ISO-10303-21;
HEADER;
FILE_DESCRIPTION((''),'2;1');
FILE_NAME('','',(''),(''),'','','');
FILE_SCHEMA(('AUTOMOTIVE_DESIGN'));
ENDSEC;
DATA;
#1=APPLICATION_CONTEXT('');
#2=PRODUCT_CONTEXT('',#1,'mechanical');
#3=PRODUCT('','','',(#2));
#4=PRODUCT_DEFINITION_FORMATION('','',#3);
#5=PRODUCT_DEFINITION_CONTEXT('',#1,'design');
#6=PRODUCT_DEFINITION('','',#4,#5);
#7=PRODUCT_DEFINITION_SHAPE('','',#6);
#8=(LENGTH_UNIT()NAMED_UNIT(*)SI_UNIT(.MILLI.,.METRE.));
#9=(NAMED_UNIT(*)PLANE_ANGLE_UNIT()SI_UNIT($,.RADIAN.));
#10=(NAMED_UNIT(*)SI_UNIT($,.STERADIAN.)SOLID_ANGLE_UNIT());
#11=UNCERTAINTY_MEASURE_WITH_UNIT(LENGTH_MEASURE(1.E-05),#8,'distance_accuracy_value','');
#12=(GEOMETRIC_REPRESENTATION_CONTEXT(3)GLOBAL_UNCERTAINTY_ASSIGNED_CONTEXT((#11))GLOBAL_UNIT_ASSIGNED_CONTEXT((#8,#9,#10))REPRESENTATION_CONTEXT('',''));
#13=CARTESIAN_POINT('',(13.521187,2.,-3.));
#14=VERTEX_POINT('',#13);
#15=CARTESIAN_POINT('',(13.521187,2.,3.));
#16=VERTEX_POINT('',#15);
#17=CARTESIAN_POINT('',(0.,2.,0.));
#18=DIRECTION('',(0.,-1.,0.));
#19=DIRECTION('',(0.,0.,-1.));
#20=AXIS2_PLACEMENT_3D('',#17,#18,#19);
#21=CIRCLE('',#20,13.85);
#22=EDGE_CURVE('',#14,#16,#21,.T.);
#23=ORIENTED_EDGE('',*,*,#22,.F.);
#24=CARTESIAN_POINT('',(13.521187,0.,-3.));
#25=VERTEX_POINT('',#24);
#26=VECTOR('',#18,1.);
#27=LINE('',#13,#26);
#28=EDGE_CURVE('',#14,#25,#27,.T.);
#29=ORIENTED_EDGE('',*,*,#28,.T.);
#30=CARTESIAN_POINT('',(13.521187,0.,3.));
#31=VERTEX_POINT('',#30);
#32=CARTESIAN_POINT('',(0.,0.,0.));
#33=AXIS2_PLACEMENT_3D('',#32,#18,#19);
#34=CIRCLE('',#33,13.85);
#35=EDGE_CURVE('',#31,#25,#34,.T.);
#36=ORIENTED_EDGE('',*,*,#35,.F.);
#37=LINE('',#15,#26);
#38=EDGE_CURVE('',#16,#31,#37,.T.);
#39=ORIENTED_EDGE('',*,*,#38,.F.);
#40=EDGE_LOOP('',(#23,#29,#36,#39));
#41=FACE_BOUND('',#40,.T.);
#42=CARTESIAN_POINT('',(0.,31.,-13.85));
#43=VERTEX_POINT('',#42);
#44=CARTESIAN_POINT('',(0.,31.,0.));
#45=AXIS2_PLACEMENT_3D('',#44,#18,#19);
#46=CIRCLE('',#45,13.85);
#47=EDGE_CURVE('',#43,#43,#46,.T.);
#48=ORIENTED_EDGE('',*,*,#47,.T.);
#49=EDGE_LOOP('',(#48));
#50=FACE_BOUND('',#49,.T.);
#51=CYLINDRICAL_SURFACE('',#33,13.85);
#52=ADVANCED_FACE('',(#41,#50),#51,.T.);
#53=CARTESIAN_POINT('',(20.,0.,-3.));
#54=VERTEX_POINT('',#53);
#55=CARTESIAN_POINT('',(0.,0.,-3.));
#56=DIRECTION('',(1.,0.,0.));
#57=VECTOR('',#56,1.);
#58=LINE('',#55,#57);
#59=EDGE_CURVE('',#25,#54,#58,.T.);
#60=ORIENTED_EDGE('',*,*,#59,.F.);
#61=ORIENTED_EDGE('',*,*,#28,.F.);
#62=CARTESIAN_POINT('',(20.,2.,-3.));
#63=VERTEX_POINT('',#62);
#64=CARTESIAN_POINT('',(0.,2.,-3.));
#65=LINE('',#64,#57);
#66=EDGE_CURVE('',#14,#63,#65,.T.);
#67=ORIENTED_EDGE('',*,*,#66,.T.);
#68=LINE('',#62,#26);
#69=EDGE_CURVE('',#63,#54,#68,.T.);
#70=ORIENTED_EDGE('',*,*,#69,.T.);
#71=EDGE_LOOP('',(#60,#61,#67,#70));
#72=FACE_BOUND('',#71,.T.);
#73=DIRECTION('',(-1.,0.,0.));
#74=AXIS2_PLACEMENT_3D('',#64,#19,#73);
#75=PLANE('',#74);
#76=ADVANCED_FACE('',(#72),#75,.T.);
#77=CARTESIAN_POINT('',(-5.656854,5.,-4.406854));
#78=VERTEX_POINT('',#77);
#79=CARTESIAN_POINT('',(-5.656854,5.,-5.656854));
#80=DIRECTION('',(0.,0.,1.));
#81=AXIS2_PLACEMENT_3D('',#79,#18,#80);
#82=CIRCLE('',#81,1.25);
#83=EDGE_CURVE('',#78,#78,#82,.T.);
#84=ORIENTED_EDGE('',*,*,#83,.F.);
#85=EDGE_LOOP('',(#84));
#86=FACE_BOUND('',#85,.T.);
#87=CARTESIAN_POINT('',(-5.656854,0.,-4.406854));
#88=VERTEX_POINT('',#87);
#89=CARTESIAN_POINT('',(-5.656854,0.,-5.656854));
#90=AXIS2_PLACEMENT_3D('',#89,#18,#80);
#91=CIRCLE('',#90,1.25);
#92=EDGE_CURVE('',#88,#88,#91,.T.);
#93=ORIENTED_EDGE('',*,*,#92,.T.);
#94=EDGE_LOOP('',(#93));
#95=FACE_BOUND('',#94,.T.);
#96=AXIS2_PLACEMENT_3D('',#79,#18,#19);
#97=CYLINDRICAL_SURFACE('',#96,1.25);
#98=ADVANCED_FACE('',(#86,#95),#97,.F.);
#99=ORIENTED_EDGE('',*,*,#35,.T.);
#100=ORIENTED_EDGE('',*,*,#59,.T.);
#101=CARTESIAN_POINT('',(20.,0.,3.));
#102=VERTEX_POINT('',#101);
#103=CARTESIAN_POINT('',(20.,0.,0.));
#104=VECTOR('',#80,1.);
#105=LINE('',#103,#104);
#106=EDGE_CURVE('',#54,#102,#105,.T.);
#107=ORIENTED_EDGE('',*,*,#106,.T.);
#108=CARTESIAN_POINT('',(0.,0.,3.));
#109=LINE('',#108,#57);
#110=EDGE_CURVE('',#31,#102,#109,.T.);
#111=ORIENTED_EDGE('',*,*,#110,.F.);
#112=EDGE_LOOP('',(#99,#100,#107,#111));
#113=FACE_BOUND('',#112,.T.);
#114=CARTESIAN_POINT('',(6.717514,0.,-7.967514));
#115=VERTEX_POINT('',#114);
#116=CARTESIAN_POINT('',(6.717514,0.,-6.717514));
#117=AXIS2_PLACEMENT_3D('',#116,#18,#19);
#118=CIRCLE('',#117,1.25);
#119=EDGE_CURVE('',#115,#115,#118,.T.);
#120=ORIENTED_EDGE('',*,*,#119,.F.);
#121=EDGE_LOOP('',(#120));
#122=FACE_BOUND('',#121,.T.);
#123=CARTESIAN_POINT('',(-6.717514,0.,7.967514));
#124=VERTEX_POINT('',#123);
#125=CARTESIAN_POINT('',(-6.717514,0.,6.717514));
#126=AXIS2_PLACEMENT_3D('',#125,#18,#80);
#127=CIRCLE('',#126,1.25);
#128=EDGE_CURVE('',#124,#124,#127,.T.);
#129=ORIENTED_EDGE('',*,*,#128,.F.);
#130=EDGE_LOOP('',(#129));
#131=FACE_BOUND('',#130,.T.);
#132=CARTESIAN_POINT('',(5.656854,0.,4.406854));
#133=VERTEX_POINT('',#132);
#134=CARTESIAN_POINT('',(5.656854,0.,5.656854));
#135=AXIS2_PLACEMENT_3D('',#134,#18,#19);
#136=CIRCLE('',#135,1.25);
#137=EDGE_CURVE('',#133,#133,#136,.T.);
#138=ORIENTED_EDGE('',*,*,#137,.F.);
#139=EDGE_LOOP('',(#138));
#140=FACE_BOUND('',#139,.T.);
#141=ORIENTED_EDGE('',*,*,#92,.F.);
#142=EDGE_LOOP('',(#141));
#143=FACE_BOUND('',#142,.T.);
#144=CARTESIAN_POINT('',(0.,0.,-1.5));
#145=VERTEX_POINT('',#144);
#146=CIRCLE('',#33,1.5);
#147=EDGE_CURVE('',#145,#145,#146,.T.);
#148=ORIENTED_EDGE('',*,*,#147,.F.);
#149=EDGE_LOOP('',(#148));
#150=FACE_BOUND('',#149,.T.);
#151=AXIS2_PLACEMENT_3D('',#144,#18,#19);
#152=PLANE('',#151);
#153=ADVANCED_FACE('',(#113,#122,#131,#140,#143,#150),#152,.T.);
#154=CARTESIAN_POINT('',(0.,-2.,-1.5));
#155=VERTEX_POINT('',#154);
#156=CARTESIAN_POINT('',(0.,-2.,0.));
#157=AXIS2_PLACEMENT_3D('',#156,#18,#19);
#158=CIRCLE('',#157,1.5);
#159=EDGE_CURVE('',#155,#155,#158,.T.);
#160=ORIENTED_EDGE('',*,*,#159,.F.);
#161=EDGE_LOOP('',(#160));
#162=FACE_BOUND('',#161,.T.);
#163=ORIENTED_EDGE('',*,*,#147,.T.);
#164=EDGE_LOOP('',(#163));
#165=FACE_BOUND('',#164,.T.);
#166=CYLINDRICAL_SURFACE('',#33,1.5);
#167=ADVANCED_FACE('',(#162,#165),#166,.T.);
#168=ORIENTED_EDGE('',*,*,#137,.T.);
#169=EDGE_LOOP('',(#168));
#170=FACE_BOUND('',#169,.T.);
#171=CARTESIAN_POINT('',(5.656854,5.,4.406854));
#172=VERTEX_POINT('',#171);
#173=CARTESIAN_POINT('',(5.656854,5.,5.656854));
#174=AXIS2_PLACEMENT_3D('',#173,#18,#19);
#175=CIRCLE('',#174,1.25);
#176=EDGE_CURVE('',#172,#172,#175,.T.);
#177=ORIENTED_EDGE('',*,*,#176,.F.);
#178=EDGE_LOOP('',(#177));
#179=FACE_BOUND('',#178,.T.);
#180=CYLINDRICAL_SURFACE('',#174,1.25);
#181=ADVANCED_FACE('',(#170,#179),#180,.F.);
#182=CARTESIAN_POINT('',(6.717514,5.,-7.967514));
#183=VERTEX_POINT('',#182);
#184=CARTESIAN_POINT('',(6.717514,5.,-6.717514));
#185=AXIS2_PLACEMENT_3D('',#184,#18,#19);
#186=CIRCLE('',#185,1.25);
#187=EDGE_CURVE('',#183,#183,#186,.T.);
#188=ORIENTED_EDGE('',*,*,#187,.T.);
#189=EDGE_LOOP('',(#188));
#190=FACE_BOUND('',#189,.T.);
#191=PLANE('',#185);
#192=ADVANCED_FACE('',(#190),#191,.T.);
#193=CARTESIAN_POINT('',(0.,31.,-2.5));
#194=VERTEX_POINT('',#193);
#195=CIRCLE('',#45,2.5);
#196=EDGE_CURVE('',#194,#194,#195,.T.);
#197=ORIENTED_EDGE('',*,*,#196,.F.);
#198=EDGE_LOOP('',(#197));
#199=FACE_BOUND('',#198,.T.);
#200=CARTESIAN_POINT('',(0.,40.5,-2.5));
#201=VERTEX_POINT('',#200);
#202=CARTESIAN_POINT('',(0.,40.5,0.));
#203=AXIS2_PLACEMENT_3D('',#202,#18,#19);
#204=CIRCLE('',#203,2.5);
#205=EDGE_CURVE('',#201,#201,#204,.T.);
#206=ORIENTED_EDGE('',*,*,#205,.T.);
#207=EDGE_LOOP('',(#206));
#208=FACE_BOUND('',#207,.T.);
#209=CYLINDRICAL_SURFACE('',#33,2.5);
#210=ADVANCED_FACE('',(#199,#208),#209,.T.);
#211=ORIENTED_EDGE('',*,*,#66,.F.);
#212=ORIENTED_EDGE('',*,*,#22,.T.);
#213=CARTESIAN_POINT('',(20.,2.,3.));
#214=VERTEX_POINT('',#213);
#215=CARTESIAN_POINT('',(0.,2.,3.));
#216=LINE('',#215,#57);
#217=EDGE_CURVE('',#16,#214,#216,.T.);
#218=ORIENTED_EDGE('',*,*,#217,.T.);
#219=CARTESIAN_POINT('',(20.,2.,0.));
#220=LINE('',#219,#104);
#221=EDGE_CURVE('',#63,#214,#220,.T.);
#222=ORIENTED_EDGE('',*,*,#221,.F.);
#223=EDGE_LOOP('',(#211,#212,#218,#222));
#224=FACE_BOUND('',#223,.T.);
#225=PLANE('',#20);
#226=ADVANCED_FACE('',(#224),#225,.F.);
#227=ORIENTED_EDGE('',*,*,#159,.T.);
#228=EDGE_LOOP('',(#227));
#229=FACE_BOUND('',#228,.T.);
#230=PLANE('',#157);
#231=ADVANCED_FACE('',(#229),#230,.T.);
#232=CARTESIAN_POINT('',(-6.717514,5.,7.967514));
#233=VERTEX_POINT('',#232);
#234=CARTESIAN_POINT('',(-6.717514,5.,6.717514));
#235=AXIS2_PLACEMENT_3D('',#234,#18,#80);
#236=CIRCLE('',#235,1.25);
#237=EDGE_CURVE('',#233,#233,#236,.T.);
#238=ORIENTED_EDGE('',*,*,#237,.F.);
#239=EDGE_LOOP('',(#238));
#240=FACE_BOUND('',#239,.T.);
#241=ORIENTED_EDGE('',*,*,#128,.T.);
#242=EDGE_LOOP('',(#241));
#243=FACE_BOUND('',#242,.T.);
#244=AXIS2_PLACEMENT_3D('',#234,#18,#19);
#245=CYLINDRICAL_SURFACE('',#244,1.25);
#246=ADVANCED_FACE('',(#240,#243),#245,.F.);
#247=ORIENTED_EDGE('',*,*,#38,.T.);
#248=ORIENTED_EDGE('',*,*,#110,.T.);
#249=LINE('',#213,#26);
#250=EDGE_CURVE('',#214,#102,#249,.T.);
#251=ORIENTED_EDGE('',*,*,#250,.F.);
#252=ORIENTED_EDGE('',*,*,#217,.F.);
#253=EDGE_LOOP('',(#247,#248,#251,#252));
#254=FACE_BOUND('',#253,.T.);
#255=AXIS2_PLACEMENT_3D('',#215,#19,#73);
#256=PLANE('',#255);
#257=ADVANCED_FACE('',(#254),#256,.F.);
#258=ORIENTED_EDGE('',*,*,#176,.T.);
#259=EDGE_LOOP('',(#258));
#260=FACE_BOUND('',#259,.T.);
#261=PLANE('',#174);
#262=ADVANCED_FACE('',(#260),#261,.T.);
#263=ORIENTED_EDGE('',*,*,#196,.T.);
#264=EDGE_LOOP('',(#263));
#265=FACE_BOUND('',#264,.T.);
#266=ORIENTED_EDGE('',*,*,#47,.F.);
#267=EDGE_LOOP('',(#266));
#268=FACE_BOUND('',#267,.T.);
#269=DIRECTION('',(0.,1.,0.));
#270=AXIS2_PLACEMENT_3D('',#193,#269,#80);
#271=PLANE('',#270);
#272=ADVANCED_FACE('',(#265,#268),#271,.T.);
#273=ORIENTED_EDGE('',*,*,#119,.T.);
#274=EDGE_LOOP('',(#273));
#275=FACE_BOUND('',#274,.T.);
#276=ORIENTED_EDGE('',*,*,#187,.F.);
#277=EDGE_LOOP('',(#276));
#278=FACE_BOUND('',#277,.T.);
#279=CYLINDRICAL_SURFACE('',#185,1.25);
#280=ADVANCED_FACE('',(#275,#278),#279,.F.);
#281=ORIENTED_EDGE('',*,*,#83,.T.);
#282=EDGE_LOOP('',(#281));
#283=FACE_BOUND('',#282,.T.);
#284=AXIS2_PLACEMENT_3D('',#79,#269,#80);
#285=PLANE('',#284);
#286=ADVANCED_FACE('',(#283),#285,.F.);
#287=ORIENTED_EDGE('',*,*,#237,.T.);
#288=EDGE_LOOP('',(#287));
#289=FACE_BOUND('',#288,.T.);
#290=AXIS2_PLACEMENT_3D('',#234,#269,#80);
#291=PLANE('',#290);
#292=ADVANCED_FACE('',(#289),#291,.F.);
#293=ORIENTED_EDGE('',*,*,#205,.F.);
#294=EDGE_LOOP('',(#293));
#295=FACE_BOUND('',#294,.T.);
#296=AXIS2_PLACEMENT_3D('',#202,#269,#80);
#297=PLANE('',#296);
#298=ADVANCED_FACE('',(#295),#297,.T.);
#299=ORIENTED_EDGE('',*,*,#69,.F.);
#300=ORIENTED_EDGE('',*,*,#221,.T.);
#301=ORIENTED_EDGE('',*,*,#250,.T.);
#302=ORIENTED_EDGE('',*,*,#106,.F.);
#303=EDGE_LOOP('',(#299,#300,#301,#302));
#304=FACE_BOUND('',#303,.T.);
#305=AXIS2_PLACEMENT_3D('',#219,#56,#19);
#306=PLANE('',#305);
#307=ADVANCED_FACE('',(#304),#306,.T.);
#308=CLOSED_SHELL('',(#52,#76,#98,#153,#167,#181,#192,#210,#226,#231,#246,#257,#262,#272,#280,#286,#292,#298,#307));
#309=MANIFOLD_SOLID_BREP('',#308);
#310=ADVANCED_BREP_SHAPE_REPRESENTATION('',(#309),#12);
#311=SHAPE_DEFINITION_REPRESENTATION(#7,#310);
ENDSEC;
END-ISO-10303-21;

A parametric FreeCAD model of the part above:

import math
import FreeCAD as App
import Part
import Sketcher
from FreeCAD import Vector
Q = App.Units.Quantity


def add_polygon(sketch, points):
    """Adds a closed chain of lines whose ends are joined by coincident constraints."""
    first, n = sketch.GeometryCount, len(points)
    for a, b in zip(points, points[1:] + points[:1]):
        sketch.addGeometry(Part.LineSegment(App.Vector(*a, 0), App.Vector(*b, 0)), False)
    for i in range(n):
        sketch.addConstraint(Sketcher.Constraint("Coincident", first + i, 2, first + (i + 1) % n, 1))

doc = App.newDocument("Part")
params = doc.addObject("Spreadsheet::Sheet", "Params")
for row, (alias, value) in enumerate([
    ("sketch1_width", "2 mm"),
    ("sketch1_width2", "31 mm"),
    ("sketch1_width3", "42.5 mm"),
    ("sketch1_height", "1.5 mm"),
    ("sketch1_height2", "2.5 mm"),
    ("revolution_angle", "360 deg"),
    ("sketch2_diameter", "2.5 mm"),
    ("pocket1_length", "5 mm"),
    ("sketch3_height", "6 mm"),
    ("sketch3_radius", "13.85 mm"),
    ("pad1_length", "2 mm"),
], start=1):
    params.set(f"A{row}", alias)
    params.set(f"B{row}", "=" + value)
    params.setAlias(f"B{row}", alias)

body = doc.addObject("PartDesign::Body", "Body")

# Sketch on YZ plane
sketch1 = doc.addObject("Sketcher::SketchObject", "Sketch")
body.addObject(sketch1)
sketch1.AttachmentSupport = (doc.YZ_Plane, [""])
sketch1.MapMode = "FlatFace"
add_polygon(sketch1, [(40.5, 0), (-2, 0), (-2, -1.5), (0, -1.5), (0, -13.85), (31, -13.85), (31, -2.5), (40.5, -2.5)])  # lines 0-7
sketch1.addConstraint([
    Sketcher.Constraint("Horizontal", 0),
    Sketcher.Constraint("Vertical", 1),
    Sketcher.Constraint("Horizontal", 2),
    Sketcher.Constraint("Vertical", 3),
    Sketcher.Constraint("Horizontal", 4),
    Sketcher.Constraint("Vertical", 5),
    Sketcher.Constraint("Horizontal", 6),
    Sketcher.Constraint("Vertical", 7),
    Sketcher.Constraint("PointOnObject", 0, 2, -1),
    Sketcher.Constraint("PointOnObject", 2, 2, -2),
    Sketcher.Constraint("DistanceX", 2, 1, 2, 2, Q("2 mm")),
    Sketcher.Constraint("DistanceX", 4, 1, 4, 2, Q("31 mm")),
    Sketcher.Constraint("DistanceX", 0, 2, 0, 1, Q("42.5 mm")),
    Sketcher.Constraint("DistanceY", 1, 2, 1, 1, Q("1.5 mm")),
    Sketcher.Constraint("DistanceY", 7, 1, 7, 2, Q("2.5 mm")),
    Sketcher.Constraint("DistanceY", 3, 2, 3, 1, Q("12.35 mm")),
])
sketch1.setExpression("Constraints[18]", "Params.sketch1_width")
sketch1.setExpression("Constraints[19]", "Params.sketch1_width2")
sketch1.setExpression("Constraints[20]", "Params.sketch1_width3")
sketch1.setExpression("Constraints[21]", "Params.sketch1_height")
sketch1.setExpression("Constraints[22]", "Params.sketch1_height2")
revolution = doc.addObject("PartDesign::Revolution", "Revolution")
body.addObject(revolution)
revolution.Profile = sketch1
revolution.ReferenceAxis = (sketch1, ["H_Axis"])
revolution.setExpression("Angle", "Params.revolution_angle")

# Sketch on XZ plane
sketch2 = doc.addObject("Sketcher::SketchObject", "Sketch001")
body.addObject(sketch2)
sketch2.AttachmentSupport = (doc.XZ_Plane, [""])
sketch2.MapMode = "FlatFace"
sketch2.addGeometry([
    Part.Circle(Vector(5.656854, 5.656854, 0), Vector(0, 0, 1), 1.25),
    Part.Circle(Vector(6.717514, -6.717514, 0), Vector(0, 0, 1), 1.25),
    Part.Circle(Vector(-6.717514, 6.717514, 0), Vector(0, 0, 1), 1.25),
    Part.Circle(Vector(-5.656854, -5.656854, 0), Vector(0, 0, 1), 1.25),
], False)
sketch2.addConstraint([
    Sketcher.Constraint("Equal", 0, 1),
    Sketcher.Constraint("Equal", 1, 2),
    Sketcher.Constraint("Equal", 2, 3),
    Sketcher.Constraint("Symmetric", 1, 3, 2, 3, -1, 1),
    Sketcher.Constraint("Symmetric", 0, 3, 3, 3, -1, 1),
    Sketcher.Constraint("Diameter", 0, Q("2.5 mm")),
    Sketcher.Constraint("DistanceX", 0, 3, 1, 3, Q("1.06066 mm")),
    Sketcher.Constraint("DistanceY", 1, 3, 0, 3, Q("12.374369 mm")),
    Sketcher.Constraint("DistanceX", 2, 3, 0, 3, Q("12.374369 mm")),
    Sketcher.Constraint("DistanceY", 0, 3, 2, 3, Q("1.06066 mm")),
])
sketch2.setExpression("Constraints[5]", "Params.sketch2_diameter")
pocket1 = doc.addObject("PartDesign::Pocket", "Pocket")
body.addObject(pocket1)
pocket1.Profile = sketch2
pocket1.setExpression("Length", "Params.pocket1_length")

# Sketch on XZ plane
sketch3 = doc.addObject("Sketcher::SketchObject", "Sketch002")
body.addObject(sketch3)
sketch3.AttachmentSupport = (doc.XZ_Plane, [""])
sketch3.MapMode = "FlatFace"
sketch3.addGeometry([
    Part.LineSegment(Vector(13.521187, -3, 0), Vector(20, -3, 0)),  # 0
    Part.LineSegment(Vector(20, -3, 0), Vector(20, 3, 0)),  # 1
    Part.LineSegment(Vector(20, 3, 0), Vector(13.521187, 3, 0)),  # 2
    Part.ArcOfCircle(Part.Circle(Vector(0, 0, 0), Vector(0, 0, 1), 13.85), math.radians(0), math.radians(12.509794)),  # 3
    Part.ArcOfCircle(Part.Circle(Vector(0, 0, 0), Vector(0, 0, 1), 13.85), math.radians(-12.509794), math.radians(0)),  # 4
], False)
sketch3.addConstraint([
    Sketcher.Constraint("Coincident", 0, 2, 1, 1),
    Sketcher.Constraint("Coincident", 1, 2, 2, 1),
    Sketcher.Constraint("Coincident", 2, 2, 3, 2),
    Sketcher.Constraint("Tangent", 3, 1, 4, 2),
    Sketcher.Constraint("Coincident", 4, 1, 0, 1),
    Sketcher.Constraint("Horizontal", 0),
    Sketcher.Constraint("Vertical", 1),
    Sketcher.Constraint("Horizontal", 2),
    Sketcher.Constraint("Coincident", 3, 3, -1, 1),
    Sketcher.Constraint("Equal", 3, 4),
    Sketcher.Constraint("PointOnObject", 3, 1, -1),
    Sketcher.Constraint("Vertical", 2, 2, 4, 1),
    Sketcher.Constraint("DistanceY", 1, 1, 1, 2, Q("6 mm")),
    Sketcher.Constraint("Radius", 3, Q("13.85 mm")),
    Sketcher.Constraint("DistanceX", -1, 1, 0, 2, Q("20 mm")),
])
sketch3.setExpression("Constraints[12]", "Params.sketch3_height")
sketch3.setExpression("Constraints[13]", "Params.sketch3_radius")
pad1 = doc.addObject("PartDesign::Pad", "Pad")
body.addObject(pad1)
pad1.Profile = sketch3
pad1.setExpression("Length", "Params.pad1_length")
pad1.Reversed = True

doc.recompute()
